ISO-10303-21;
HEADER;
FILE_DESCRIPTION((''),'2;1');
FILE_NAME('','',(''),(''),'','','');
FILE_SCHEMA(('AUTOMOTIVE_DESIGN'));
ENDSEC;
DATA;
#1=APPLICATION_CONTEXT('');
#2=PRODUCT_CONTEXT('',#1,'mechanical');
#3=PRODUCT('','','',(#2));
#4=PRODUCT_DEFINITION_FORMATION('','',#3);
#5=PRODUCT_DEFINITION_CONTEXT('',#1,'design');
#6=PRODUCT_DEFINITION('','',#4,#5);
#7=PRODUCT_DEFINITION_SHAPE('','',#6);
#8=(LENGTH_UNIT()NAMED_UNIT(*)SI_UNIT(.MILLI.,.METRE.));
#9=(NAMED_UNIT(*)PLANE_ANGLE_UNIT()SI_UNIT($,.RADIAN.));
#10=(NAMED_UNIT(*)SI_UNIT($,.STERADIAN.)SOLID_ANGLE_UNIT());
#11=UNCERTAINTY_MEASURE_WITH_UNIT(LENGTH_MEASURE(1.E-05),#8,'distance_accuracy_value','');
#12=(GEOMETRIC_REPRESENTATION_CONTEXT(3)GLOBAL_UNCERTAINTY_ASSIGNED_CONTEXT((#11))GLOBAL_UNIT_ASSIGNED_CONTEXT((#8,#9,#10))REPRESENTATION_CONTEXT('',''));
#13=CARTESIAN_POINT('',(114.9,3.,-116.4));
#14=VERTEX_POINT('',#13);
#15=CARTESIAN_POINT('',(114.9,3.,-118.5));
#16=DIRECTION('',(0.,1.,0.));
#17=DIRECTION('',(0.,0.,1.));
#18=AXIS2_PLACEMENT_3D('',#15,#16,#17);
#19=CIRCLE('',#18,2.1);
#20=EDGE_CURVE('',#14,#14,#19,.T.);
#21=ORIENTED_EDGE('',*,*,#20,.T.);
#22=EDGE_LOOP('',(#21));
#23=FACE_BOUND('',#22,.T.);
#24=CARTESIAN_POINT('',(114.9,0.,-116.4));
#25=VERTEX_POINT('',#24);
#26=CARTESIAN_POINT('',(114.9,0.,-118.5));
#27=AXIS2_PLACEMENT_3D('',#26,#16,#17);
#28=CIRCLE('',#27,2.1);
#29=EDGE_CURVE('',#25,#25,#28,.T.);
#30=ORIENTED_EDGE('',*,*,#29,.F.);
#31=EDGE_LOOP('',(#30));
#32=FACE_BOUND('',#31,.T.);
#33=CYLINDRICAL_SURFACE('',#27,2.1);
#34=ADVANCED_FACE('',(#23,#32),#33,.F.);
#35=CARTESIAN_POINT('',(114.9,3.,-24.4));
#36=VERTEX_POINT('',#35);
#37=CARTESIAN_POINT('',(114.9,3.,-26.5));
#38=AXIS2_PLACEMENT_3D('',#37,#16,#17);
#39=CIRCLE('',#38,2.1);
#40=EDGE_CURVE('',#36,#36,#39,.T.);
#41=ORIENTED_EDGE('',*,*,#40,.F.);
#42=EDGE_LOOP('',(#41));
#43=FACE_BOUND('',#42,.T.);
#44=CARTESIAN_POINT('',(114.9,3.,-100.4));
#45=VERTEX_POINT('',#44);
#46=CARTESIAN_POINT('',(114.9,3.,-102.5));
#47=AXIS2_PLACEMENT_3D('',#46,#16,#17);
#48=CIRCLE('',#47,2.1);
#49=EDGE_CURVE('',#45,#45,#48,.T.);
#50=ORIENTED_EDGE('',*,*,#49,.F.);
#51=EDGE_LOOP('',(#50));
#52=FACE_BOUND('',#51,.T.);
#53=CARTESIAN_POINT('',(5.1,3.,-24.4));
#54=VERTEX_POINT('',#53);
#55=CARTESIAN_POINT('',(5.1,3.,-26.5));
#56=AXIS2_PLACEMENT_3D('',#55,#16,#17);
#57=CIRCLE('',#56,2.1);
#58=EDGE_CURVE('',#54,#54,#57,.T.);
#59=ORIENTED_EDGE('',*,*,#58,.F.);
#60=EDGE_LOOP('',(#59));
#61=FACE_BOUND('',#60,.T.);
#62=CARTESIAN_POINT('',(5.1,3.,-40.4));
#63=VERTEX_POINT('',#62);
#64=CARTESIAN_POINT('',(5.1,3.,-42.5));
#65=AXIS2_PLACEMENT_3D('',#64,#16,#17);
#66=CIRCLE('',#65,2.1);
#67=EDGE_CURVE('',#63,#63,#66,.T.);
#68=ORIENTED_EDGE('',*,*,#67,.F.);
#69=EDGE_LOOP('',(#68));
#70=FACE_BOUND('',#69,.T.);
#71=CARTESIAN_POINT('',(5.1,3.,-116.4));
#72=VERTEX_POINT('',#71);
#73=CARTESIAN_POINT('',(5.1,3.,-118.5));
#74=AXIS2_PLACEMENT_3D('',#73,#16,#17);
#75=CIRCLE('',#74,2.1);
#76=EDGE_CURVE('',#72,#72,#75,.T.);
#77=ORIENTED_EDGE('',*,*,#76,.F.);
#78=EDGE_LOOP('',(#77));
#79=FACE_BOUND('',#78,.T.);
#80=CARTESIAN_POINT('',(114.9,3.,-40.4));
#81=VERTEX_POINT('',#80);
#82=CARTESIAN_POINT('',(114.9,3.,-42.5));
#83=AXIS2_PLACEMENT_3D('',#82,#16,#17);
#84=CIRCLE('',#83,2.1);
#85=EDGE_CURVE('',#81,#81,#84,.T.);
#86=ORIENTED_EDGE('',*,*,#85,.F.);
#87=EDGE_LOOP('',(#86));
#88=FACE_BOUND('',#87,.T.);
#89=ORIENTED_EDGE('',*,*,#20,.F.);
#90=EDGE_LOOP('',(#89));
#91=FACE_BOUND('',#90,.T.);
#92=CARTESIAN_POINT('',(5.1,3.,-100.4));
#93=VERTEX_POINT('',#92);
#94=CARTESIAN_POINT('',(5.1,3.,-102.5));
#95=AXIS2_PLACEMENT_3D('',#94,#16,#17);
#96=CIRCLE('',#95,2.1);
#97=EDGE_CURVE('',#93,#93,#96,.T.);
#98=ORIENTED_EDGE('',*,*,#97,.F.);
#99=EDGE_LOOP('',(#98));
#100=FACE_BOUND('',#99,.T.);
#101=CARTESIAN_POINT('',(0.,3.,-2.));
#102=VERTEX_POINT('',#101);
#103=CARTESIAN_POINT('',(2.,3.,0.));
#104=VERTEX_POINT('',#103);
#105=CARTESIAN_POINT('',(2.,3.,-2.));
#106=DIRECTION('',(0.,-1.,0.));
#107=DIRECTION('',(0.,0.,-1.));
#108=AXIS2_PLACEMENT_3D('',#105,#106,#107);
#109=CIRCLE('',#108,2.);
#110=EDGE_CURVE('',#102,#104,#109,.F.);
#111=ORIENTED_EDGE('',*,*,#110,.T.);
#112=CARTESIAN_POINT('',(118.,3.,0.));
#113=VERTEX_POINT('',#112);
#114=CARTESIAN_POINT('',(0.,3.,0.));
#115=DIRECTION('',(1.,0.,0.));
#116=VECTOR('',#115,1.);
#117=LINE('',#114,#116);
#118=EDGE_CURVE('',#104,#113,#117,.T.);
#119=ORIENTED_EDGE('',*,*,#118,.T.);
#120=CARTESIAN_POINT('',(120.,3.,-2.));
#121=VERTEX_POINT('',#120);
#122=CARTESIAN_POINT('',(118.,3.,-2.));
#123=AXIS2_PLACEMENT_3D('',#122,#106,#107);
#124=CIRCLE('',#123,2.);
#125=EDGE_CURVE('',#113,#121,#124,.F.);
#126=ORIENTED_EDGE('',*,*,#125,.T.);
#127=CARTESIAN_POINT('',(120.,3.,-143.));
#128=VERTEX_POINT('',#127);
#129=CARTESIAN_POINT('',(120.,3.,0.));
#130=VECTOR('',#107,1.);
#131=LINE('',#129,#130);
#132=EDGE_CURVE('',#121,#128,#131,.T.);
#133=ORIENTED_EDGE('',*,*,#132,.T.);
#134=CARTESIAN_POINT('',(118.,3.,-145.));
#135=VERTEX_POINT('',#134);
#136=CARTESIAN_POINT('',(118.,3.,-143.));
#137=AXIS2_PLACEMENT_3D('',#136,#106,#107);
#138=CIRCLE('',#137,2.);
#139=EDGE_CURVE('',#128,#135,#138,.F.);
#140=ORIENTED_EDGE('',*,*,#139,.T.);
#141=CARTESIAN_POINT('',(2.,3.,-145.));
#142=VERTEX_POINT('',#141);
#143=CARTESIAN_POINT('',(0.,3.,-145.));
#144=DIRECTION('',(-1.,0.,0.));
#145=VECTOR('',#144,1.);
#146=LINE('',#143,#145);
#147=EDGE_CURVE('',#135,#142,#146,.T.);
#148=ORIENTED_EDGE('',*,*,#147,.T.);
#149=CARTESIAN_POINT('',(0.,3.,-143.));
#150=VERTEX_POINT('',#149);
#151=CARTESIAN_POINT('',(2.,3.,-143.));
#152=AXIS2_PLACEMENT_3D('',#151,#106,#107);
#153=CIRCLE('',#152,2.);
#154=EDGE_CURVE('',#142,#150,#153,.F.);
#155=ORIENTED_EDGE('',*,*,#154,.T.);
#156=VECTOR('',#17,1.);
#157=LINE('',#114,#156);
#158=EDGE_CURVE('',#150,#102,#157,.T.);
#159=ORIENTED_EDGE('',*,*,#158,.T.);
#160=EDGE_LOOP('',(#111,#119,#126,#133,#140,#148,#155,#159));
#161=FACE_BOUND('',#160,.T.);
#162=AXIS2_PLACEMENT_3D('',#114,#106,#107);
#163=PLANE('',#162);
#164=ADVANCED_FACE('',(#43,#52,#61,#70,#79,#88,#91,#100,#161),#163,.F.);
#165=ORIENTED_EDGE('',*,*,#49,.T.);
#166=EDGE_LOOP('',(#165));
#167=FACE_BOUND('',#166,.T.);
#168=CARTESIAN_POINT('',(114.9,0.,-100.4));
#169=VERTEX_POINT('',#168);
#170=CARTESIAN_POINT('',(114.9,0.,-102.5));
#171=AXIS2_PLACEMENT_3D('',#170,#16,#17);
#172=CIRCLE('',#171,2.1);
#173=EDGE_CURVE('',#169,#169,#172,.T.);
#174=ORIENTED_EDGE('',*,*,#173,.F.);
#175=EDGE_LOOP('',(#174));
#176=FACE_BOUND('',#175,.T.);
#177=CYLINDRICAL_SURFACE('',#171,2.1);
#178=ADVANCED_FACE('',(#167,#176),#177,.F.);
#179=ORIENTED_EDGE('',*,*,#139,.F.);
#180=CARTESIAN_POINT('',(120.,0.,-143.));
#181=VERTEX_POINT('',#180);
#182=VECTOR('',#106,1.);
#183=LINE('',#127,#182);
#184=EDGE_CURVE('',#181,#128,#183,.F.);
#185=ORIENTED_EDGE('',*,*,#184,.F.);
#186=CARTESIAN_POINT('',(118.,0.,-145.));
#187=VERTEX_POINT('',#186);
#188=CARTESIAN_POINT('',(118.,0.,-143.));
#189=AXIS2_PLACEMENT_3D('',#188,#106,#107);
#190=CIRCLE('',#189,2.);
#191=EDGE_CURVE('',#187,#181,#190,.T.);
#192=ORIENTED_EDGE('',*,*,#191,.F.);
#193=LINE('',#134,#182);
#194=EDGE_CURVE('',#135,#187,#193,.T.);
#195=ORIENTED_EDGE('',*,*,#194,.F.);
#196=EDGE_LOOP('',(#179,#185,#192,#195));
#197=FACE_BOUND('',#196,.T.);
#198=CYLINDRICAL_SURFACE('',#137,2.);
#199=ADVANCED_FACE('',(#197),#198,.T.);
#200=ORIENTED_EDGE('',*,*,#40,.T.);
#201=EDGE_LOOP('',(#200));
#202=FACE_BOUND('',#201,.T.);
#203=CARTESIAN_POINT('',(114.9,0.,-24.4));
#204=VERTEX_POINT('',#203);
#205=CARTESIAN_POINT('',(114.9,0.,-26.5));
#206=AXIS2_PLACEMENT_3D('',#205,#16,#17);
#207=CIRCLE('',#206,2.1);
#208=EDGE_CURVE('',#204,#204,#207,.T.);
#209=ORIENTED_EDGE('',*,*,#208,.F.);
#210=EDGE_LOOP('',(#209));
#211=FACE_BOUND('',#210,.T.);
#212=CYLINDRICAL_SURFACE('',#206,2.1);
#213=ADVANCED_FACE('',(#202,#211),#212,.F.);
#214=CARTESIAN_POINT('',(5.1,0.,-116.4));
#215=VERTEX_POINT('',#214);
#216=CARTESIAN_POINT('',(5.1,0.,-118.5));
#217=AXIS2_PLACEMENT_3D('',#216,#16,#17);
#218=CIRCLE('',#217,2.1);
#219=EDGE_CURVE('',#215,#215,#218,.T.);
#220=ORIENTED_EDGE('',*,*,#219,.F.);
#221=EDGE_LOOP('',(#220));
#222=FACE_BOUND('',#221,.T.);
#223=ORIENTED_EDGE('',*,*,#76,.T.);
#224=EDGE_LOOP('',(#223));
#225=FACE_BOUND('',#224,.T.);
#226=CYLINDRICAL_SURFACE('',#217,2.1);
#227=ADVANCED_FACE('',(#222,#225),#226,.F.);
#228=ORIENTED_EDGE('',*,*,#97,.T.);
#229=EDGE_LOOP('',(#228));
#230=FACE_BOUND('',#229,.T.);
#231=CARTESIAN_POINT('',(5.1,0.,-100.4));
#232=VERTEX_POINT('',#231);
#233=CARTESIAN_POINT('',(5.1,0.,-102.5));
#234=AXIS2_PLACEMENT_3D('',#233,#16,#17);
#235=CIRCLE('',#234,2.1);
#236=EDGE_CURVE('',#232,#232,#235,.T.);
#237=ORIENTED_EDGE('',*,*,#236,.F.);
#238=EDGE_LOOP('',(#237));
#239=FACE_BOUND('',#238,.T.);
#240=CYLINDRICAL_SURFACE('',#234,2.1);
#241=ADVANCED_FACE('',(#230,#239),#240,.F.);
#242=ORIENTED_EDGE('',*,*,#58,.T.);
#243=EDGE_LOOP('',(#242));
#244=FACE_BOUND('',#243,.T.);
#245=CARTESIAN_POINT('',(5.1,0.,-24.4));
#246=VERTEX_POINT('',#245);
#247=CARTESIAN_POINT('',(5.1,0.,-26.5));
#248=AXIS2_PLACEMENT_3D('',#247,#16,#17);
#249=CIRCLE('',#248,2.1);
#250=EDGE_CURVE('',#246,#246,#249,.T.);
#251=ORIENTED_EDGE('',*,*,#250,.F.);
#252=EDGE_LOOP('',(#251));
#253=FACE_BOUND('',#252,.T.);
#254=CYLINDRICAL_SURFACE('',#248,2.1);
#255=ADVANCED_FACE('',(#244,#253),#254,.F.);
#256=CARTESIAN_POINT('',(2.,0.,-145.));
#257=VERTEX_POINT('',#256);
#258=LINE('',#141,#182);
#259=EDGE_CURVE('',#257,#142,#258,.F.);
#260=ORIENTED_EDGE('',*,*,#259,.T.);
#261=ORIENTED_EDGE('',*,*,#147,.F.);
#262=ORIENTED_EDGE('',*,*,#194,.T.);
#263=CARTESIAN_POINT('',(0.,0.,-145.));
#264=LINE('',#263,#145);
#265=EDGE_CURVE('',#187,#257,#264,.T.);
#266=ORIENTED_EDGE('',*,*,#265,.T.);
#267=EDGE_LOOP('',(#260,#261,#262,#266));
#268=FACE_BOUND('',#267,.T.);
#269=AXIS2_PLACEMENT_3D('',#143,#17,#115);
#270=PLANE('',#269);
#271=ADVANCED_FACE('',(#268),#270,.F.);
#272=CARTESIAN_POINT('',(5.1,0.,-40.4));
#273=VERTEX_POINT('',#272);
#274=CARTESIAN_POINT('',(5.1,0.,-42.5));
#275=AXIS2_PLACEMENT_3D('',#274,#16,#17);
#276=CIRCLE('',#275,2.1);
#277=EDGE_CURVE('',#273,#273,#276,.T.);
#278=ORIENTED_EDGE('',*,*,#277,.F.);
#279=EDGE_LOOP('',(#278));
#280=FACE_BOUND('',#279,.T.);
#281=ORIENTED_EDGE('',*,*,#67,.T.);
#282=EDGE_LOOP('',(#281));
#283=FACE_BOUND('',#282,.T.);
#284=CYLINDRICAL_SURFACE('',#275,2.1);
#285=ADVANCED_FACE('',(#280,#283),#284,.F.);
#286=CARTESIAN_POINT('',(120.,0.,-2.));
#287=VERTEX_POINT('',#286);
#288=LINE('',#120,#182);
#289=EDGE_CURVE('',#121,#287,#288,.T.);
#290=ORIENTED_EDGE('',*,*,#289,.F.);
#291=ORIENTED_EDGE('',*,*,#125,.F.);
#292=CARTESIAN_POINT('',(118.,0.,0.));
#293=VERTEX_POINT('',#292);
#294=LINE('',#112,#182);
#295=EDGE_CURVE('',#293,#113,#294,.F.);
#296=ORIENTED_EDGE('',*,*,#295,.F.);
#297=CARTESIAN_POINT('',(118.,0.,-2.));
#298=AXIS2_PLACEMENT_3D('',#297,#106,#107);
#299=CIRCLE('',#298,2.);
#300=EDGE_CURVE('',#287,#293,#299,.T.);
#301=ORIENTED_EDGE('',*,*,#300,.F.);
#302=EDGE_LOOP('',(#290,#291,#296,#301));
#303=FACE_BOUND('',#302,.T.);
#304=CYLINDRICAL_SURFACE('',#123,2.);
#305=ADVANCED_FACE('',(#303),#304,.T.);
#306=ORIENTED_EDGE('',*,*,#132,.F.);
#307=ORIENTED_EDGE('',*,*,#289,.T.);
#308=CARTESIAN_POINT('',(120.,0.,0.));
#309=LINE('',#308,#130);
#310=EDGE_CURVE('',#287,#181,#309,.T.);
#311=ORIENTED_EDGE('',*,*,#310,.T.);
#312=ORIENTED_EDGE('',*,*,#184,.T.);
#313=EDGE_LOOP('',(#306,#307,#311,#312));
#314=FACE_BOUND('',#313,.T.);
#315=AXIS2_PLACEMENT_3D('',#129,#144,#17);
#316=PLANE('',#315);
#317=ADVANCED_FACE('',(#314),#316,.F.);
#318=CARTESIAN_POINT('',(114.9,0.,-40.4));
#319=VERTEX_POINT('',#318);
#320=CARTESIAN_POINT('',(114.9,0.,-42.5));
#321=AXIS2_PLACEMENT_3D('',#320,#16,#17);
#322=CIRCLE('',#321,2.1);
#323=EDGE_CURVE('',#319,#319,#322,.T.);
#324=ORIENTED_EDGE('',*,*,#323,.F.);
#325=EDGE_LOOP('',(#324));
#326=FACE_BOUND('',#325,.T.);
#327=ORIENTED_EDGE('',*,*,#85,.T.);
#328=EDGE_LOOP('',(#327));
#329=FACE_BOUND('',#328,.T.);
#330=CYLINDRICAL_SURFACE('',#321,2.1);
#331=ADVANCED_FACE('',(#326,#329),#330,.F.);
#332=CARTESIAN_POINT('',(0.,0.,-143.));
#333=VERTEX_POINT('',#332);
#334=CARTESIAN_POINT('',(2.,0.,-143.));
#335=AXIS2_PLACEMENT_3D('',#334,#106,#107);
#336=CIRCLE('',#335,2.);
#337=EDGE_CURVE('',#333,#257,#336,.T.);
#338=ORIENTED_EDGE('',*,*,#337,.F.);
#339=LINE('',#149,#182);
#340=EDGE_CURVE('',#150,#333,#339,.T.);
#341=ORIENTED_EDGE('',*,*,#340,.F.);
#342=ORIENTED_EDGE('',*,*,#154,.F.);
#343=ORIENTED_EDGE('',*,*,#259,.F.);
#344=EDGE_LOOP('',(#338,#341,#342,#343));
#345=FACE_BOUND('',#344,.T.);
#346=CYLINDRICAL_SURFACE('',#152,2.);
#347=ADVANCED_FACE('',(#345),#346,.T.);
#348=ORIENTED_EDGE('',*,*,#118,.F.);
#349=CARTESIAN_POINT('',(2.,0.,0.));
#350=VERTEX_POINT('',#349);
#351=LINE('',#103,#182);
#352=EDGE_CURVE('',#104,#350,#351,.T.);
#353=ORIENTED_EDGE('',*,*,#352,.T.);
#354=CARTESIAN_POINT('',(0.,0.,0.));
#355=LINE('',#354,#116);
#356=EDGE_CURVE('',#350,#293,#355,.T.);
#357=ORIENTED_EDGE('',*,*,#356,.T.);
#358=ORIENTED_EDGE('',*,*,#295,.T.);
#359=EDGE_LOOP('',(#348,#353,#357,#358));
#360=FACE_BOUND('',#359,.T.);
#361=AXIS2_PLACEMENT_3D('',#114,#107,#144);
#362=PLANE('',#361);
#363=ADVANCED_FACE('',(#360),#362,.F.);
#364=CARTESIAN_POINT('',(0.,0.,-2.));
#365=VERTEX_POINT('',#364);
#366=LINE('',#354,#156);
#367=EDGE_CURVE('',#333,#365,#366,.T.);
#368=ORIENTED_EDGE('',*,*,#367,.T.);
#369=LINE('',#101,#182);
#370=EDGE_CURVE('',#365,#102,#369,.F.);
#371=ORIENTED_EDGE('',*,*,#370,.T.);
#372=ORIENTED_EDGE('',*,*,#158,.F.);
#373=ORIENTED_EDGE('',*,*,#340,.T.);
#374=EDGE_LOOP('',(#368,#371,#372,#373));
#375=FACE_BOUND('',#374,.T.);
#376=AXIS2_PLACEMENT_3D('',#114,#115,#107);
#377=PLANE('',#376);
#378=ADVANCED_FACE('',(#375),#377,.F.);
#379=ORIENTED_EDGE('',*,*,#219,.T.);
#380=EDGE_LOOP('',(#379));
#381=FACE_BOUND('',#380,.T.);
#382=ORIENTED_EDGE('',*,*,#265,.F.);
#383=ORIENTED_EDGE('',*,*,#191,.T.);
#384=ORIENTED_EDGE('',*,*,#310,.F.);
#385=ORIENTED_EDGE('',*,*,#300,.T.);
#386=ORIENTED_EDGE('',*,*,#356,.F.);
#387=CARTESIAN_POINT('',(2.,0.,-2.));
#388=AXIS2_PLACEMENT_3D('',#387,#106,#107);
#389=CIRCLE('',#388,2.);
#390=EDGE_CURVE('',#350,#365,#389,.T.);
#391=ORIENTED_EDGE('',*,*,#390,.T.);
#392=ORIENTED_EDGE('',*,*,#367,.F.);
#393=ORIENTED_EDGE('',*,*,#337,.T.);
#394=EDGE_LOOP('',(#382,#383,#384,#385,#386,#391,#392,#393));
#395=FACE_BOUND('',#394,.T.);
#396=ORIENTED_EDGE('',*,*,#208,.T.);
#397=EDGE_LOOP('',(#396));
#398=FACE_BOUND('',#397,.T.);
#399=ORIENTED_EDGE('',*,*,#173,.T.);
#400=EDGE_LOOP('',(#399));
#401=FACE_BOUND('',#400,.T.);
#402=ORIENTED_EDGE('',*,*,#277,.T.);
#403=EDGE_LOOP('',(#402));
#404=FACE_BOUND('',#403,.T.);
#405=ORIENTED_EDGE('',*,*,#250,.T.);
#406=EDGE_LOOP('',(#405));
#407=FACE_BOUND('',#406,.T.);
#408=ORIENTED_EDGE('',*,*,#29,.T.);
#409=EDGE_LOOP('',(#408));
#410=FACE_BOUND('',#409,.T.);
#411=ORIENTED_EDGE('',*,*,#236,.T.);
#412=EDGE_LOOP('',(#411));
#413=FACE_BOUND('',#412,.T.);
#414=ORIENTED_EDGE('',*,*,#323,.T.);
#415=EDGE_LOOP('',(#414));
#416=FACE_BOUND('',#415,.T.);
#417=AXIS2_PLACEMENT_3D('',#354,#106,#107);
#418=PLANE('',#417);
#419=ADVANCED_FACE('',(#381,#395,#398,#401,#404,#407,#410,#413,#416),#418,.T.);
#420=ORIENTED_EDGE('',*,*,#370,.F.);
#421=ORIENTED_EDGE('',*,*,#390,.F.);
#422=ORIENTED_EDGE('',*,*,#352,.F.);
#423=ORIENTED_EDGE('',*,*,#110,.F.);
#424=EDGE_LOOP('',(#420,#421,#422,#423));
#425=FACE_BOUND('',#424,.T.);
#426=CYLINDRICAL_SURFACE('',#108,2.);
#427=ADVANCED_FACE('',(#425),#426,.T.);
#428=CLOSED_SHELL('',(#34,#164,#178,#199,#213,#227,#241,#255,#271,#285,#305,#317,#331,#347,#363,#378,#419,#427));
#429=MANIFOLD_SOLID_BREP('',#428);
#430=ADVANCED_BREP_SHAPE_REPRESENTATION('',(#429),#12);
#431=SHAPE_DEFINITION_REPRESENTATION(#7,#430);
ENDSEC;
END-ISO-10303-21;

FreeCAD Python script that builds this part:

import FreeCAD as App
import Part
import Sketcher
Q = App.Units.Quantity


def edges_at(feature, points):
    """Names of the edges that pass closest to the given points."""
    edges = feature.Shape.Edges
    near = lambda p: min(range(len(edges)), key=lambda i: edges[i].distToShape(Part.Vertex(*p))[0])
    return sorted({f"Edge{near(p) + 1}" for p in points})

doc = App.newDocument("Part")
body = doc.addObject("PartDesign::Body", "Body")

# Sketch on XZ plane
sketch1 = doc.addObject("Sketcher::SketchObject", "Sketch")
body.addObject(sketch1)
sketch1.AttachmentSupport = (doc.XZ_Plane, [""])
sketch1.MapMode = "FlatFace"
sketch1.addGeometry(Part.LineSegment(App.Vector(0, -145, 0), App.Vector(0, 0, 0)), False)
sketch1.addGeometry(Part.LineSegment(App.Vector(0, 0, 0), App.Vector(120, 0, 0)), False)
sketch1.addGeometry(Part.LineSegment(App.Vector(120, 0, 0), App.Vector(120, -145, 0)), False)
sketch1.addGeometry(Part.LineSegment(App.Vector(120, -145, 0), App.Vector(0, -145, 0)), False)
sketch1.addConstraint(Sketcher.Constraint("Coincident", 0, 2, 1, 1))
sketch1.addConstraint(Sketcher.Constraint("Coincident", 1, 2, 2, 1))
sketch1.addConstraint(Sketcher.Constraint("Coincident", 2, 2, 3, 1))
sketch1.addConstraint(Sketcher.Constraint("Coincident", 3, 2, 0, 1))
sketch1.addConstraint(Sketcher.Constraint("Vertical", 0))
sketch1.addConstraint(Sketcher.Constraint("Horizontal", 1))
sketch1.addConstraint(Sketcher.Constraint("Vertical", 2))
sketch1.addConstraint(Sketcher.Constraint("Horizontal", 3))
sketch1.addConstraint(Sketcher.Constraint("Coincident", 0, 2, -1, 1))
sketch1.addConstraint(Sketcher.Constraint("DistanceX", 1, 1, 1, 2, Q("120 mm")))
sketch1.addConstraint(Sketcher.Constraint("DistanceY", 0, 1, 0, 2, Q("145 mm")))
pad1 = doc.addObject("PartDesign::Pad", "Pad")
body.addObject(pad1)
pad1.Profile = sketch1
pad1.Length = 3
pad1.Reversed = True

# Sketch on XZ plane
sketch2 = doc.addObject("Sketcher::SketchObject", "Sketch001")
body.addObject(sketch2)
sketch2.AttachmentSupport = (doc.XZ_Plane, [""])
sketch2.MapMode = "FlatFace"
sketch2.AttachmentOffset = App.Placement(App.Vector(0, 0, -3), App.Rotation())
sketch2.addGeometry(Part.Circle(App.Vector(5.1, -118.5, 0), App.Vector(0, 0, 1), 2.1), False)
sketch2.addGeometry(Part.Circle(App.Vector(5.1, -102.5, 0), App.Vector(0, 0, 1), 2.1), False)
sketch2.addGeometry(Part.Circle(App.Vector(5.1, -42.5, 0), App.Vector(0, 0, 1), 2.1), False)
sketch2.addGeometry(Part.Circle(App.Vector(5.1, -26.5, 0), App.Vector(0, 0, 1), 2.1), False)
sketch2.addGeometry(Part.Circle(App.Vector(114.9, -26.5, 0), App.Vector(0, 0, 1), 2.1), False)
sketch2.addGeometry(Part.Circle(App.Vector(114.9, -42.5, 0), App.Vector(0, 0, 1), 2.1), False)
sketch2.addGeometry(Part.Circle(App.Vector(114.9, -102.5, 0), App.Vector(0, 0, 1), 2.1), False)
sketch2.addGeometry(Part.Circle(App.Vector(114.9, -118.5, 0), App.Vector(0, 0, 1), 2.1), False)
sketch2.addConstraint(Sketcher.Constraint("Equal", 0, 1))
sketch2.addConstraint(Sketcher.Constraint("Equal", 1, 2))
sketch2.addConstraint(Sketcher.Constraint("Equal", 2, 3))
sketch2.addConstraint(Sketcher.Constraint("Equal", 3, 4))
sketch2.addConstraint(Sketcher.Constraint("Equal", 4, 5))
sketch2.addConstraint(Sketcher.Constraint("Equal", 5, 6))
sketch2.addConstraint(Sketcher.Constraint("Equal", 6, 7))
sketch2.addConstraint(Sketcher.Constraint("Horizontal", 3, 3, 4, 3))
sketch2.addConstraint(Sketcher.Constraint("Horizontal", 2, 3, 5, 3))
sketch2.addConstraint(Sketcher.Constraint("Horizontal", 1, 3, 6, 3))
sketch2.addConstraint(Sketcher.Constraint("Horizontal", 0, 3, 7, 3))
sketch2.addConstraint(Sketcher.Constraint("Vertical", 0, 3, 1, 3))
sketch2.addConstraint(Sketcher.Constraint("Vertical", 1, 3, 2, 3))
sketch2.addConstraint(Sketcher.Constraint("Vertical", 2, 3, 3, 3))
sketch2.addConstraint(Sketcher.Constraint("Vertical", 4, 3, 5, 3))
sketch2.addConstraint(Sketcher.Constraint("Vertical", 5, 3, 6, 3))
sketch2.addConstraint(Sketcher.Constraint("Vertical", 6, 3, 7, 3))
sketch2.addConstraint(Sketcher.Constraint("Diameter", 0, Q("4.2 mm")))
sketch2.addConstraint(Sketcher.Constraint("DistanceY", 0, 3, 1, 3, Q("16 mm")))
sketch2.addConstraint(Sketcher.Constraint("DistanceY", 1, 3, 2, 3, Q("60 mm")))
sketch2.addConstraint(Sketcher.Constraint("DistanceY", 2, 3, 3, 3, Q("16 mm")))
sketch2.addConstraint(Sketcher.Constraint("DistanceX", -1, 1, 0, 3, Q("5.1 mm")))
sketch2.addConstraint(Sketcher.Constraint("DistanceY", 0, 3, -1, 1, Q("118.5 mm")))
sketch2.addConstraint(Sketcher.Constraint("DistanceX", -1, 1, 4, 3, Q("114.9 mm")))
pocket1 = doc.addObject("PartDesign::Pocket", "Pocket")
body.addObject(pocket1)
pocket1.Profile = sketch2
pocket1.Type = "ThroughAll"
pocket1.Reversed = True
doc.recompute()

fillet = doc.addObject("PartDesign::Fillet", "Fillet")
body.addObject(fillet)
fillet.Base = (pocket1, edges_at(pocket1, [
    (0, 1.5, -145),
    (120, 1.5, -145),
    (120, 1.5, 0),
    (0, 1.5, 0),
]))
fillet.Radius = 2

doc.recompute()
